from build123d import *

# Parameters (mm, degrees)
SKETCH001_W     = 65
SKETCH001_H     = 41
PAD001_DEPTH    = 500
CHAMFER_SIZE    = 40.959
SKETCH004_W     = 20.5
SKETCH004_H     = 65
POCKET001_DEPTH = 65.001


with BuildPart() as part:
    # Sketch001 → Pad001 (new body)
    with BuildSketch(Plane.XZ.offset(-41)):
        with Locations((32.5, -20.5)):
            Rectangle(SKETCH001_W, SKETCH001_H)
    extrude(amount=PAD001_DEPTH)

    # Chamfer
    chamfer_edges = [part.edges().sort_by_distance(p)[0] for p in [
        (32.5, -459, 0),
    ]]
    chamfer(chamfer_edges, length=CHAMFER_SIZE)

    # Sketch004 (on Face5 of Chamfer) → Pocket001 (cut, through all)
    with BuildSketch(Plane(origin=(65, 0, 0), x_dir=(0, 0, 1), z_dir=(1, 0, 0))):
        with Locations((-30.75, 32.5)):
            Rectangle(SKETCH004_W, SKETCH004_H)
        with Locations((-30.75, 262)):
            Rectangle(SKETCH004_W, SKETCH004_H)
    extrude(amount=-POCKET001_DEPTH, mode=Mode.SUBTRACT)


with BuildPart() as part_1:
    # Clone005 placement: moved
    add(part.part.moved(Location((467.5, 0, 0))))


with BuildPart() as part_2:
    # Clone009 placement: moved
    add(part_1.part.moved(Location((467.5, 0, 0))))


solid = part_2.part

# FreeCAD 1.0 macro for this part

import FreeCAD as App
import Part
import Sketcher

V = App.Vector


def edges_at(feature, points):
    """Names of the edges that pass closest to the given points."""
    edges = feature.Shape.Edges
    near = lambda p: min(range(len(edges)), key=lambda i: edges[i].distToShape(Part.Vertex(*p))[0])
    return sorted({f"Edge{near(p) + 1}" for p in points})


def add_polygon(sketch, points):
    """Adds a closed chain of lines whose ends are joined by coincident constraints."""
    first, n = sketch.GeometryCount, len(points)
    for a, b in zip(points, points[1:] + points[:1]):
        sketch.addGeometry(Part.LineSegment(App.Vector(*a, 0), App.Vector(*b, 0)), False)
    for i in range(n):
        sketch.addConstraint(Sketcher.Constraint("Coincident", first + i, 2, first + (i + 1) % n, 1))

doc = App.newDocument("Part")
body = doc.addObject("PartDesign::Body", "Body")

sketch1 = doc.addObject("Sketcher::SketchObject", "Sketch")
body.addObject(sketch1)
sketch1.AttachmentSupport = (doc.XZ_Plane, [""])
sketch1.MapMode = "FlatFace"
sketch1.AttachmentOffset = App.Placement(V(0, 0, -41), App.Rotation())
add_polygon(sketch1, [(0, 0), (0, -41), (65, -41), (65, 0)])
sketch1.addConstraint(Sketcher.Constraint("Vertical", 0))
sketch1.addConstraint(Sketcher.Constraint("Horizontal", 1))
sketch1.addConstraint(Sketcher.Constraint("Vertical", 2))
sketch1.addConstraint(Sketcher.Constraint("Horizontal", 3))
sketch1.addConstraint(Sketcher.Constraint("Coincident", 3, 2, -1, 1))
sketch1.addConstraint(Sketcher.Constraint("DistanceX", 1, 1, 1, 2, 65.0))
sketch1.addConstraint(Sketcher.Constraint("DistanceY", 0, 2, 0, 1, 41.0))
pad1 = doc.addObject("PartDesign::Pad", "Pad")
body.addObject(pad1)
pad1.Profile = sketch1
pad1.Length = 500
doc.recompute()

chamfer = doc.addObject("PartDesign::Chamfer", "Chamfer")
body.addObject(chamfer)
chamfer.Base = (pad1, edges_at(pad1, [(32.5, -459, 0)]))
chamfer.Size = 40.959

sketch2 = doc.addObject("Sketcher::SketchObject", "Sketch001")
body.addObject(sketch2)
sketch2.AttachmentSupport = (doc.YZ_Plane, [""])
sketch2.MapMode = "FlatFace"
sketch2.AttachmentOffset = App.Placement(V(0, 0, 65), App.Rotation())
add_polygon(sketch2, [(-65, -41), (0, -41), (0, -20), (-65, -20)])
add_polygon(sketch2, [(-294, -41), (-230, -41), (-230, -20), (-294, -20)])
sketch2.addConstraint(Sketcher.Constraint("Horizontal", 0))
sketch2.addConstraint(Sketcher.Constraint("Vertical", 1))
sketch2.addConstraint(Sketcher.Constraint("Horizontal", 2))
sketch2.addConstraint(Sketcher.Constraint("Vertical", 3))
sketch2.addConstraint(Sketcher.Constraint("Horizontal", 4))
sketch2.addConstraint(Sketcher.Constraint("Vertical", 5))
sketch2.addConstraint(Sketcher.Constraint("Horizontal", 6))
sketch2.addConstraint(Sketcher.Constraint("Vertical", 7))
sketch2.addConstraint(Sketcher.Constraint("PointOnObject", 0, 2, -2))
sketch2.addConstraint(Sketcher.Constraint("Horizontal", 3, 2, 4, 2))
sketch2.addConstraint(Sketcher.Constraint("Horizontal", 2, 2, 5, 2))
sketch2.addConstraint(Sketcher.Constraint("Equal", 2, 4))
sketch2.addConstraint(Sketcher.Constraint("DistanceX", 0, 1, 0, 2, 65.0))
sketch2.addConstraint(Sketcher.Constraint("DistanceY", 1, 1, 1, 2, 20.5))
sketch2.addConstraint(Sketcher.Constraint("DistanceY", 0, 2, -1, 1, 41.0))
sketch2.addConstraint(Sketcher.Constraint("DistanceX", 4, 2, -1, 1, 229.5))
pocket1 = doc.addObject("PartDesign::Pocket", "Pocket")
body.addObject(pocket1)
pocket1.Profile = sketch2
pocket1.Type = "ThroughAll"
body2 = doc.addObject("PartDesign::Body", "Body001")
doc.recompute()

body.Placement = App.Placement(V(467.5, 0, 0), App.Rotation(V(0, 0, 1), 0))
boolean = doc.addObject("PartDesign::Boolean", "Boolean")
body2.addObject(boolean)
boolean.Type = "Fuse"
boolean.addObjects([body])
body3 = doc.addObject("PartDesign::Body", "Body002")
doc.recompute()

body2.Placement = App.Placement(V(467.5, 0, 0), App.Rotation(V(0, 0, 1), 0))
boolean2 = doc.addObject("PartDesign::Boolean", "Boolean001")
body3.addObject(boolean2)
boolean2.Type = "Fuse"
boolean2.addObjects([body2])

doc.recompute()
